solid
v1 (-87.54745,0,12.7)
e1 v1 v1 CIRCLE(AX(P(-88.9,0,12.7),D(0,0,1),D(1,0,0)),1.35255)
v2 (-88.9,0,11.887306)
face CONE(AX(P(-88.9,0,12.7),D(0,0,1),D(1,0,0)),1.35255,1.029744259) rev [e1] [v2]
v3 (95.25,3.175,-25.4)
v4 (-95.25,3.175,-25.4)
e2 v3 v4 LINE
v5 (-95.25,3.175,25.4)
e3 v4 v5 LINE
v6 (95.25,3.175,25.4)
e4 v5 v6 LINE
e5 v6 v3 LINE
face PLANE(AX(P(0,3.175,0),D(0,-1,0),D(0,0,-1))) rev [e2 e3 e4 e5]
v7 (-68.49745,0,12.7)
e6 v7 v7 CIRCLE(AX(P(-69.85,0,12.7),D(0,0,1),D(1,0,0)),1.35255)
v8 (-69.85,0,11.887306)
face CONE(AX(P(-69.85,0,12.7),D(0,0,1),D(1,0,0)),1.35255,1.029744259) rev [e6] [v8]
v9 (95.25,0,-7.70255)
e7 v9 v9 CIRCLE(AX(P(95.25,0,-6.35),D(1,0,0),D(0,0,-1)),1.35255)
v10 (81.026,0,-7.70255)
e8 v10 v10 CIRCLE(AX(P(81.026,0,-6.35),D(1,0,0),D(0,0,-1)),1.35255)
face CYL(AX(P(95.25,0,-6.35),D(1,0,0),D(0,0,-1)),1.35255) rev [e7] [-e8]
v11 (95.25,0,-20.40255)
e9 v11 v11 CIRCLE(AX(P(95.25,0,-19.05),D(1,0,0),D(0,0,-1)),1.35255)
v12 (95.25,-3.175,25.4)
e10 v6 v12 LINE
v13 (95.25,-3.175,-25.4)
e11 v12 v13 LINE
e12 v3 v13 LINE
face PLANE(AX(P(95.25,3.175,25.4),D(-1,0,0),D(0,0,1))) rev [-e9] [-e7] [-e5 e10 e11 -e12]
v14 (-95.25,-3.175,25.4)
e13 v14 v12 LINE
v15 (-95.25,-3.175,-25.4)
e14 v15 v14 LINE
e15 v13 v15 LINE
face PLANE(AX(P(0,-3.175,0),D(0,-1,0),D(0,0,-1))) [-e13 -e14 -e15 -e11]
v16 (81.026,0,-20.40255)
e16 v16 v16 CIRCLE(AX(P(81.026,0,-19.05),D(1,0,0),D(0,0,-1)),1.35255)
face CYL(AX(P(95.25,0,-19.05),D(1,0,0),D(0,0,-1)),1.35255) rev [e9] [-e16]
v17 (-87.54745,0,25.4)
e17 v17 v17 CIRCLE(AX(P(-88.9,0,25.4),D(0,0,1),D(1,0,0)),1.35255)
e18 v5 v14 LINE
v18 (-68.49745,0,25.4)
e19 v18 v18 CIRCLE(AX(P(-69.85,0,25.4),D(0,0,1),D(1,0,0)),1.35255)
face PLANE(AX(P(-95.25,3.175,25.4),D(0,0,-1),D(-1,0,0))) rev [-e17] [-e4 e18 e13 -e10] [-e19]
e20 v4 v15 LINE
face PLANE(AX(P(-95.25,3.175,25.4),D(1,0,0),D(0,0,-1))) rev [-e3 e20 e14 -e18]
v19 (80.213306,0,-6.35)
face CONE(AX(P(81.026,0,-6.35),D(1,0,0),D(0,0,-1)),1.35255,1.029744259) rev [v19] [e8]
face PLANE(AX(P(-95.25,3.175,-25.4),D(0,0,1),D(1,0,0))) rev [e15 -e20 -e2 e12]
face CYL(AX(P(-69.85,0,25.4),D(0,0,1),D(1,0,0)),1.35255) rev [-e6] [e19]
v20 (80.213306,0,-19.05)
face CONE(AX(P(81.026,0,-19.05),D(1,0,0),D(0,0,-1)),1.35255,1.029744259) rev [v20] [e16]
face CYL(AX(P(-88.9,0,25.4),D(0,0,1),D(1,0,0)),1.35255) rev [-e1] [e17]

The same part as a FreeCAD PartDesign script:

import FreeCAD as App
import Part
import Sketcher
from FreeCAD import Vector
Q = App.Units.Quantity

doc = App.newDocument("Part")
params = doc.addObject("Spreadsheet::Sheet", "Params")
for row, (alias, value) in enumerate([
    ("sketch1_height", "2 in"),
    ("sketch1_width", "7.5 in"),
    ("pad1_length", "0.25 in"),
    ("hole_diameter", "0.1065 in"),
    ("hole_depth", "0.5 in"),
    ("hole2_diameter", "0.1065 in"),
    ("hole2_depth", "0.56 in"),
], start=1):
    params.set(f"A{row}", alias)
    params.set(f"B{row}", "=" + value)
    params.setAlias(f"B{row}", alias)

body = doc.addObject("PartDesign::Body", "Body")

# Sketch on XZ plane
sketch1 = body.newObject("Sketcher::SketchObject", "Sketch")
sketch1.AttachmentSupport = (doc.getObject("XZ_Plane"), [""])
sketch1.MapMode = "FlatFace"
sketch1.addGeometry(Part.LineSegment(Vector(-95, -25, 0), Vector(-95, 25, 0)), False)
sketch1.addGeometry(Part.LineSegment(Vector(-95, 25, 0), Vector(95, 25, 0)), False)
sketch1.addGeometry(Part.LineSegment(Vector(95, 25, 0), Vector(95, -25, 0)), False)
sketch1.addGeometry(Part.LineSegment(Vector(95, -25, 0), Vector(-95, -25, 0)), False)
sketch1.addConstraint(Sketcher.Constraint("Coincident", 0, 2, 1, 1))
sketch1.addConstraint(Sketcher.Constraint("Coincident", 1, 2, 2, 1))
sketch1.addConstraint(Sketcher.Constraint("Coincident", 2, 2, 3, 1))
sketch1.addConstraint(Sketcher.Constraint("Coincident", 3, 2, 0, 1))
sketch1.addConstraint(Sketcher.Constraint("Vertical", 0))
sketch1.addConstraint(Sketcher.Constraint("Horizontal", 1))
sketch1.addConstraint(Sketcher.Constraint("Vertical", 2))
sketch1.addConstraint(Sketcher.Constraint("Horizontal", 3))
sketch1.addConstraint(Sketcher.Constraint("Symmetric", 0, 2, 2, 2, -1, 1))
sketch1.addConstraint(Sketcher.Constraint("DistanceY", 0, 1, 0, 2, Q("2 in")))
sketch1.addConstraint(Sketcher.Constraint("DistanceX", 1, 1, 1, 2, Q("7.5 in")))
sketch1.setExpression("Constraints[9]", "Params.sketch1_height")
sketch1.setExpression("Constraints[10]", "Params.sketch1_width")
pad1 = body.newObject("PartDesign::Pad", "Pad")
pad1.Profile = sketch1
pad1.setExpression("Length", "Params.pad1_length")
pad1.Midplane = True

# Sketch on XY plane
sketch2 = body.newObject("Sketcher::SketchObject", "Sketch001")
sketch2.AttachmentSupport = (doc.getObject("XY_Plane"), [""])
sketch2.MapMode = "FlatFace"
sketch2.AttachmentOffset = App.Placement(Vector(0, 0, 1 * 25.4), App.Rotation())
sketch2.addGeometry(Part.Circle(Vector(-69.8, 0, 0), Vector(0, 0, 1), 1.4), False)
sketch2.addGeometry(Part.Circle(Vector(-88.9, 0, 0), Vector(0, 0, 1), 1.4), False)
sketch2.addConstraint(Sketcher.Constraint("Equal", 0, 1))
sketch2.addConstraint(Sketcher.Constraint("PointOnObject", 0, 3, -1))
sketch2.addConstraint(Sketcher.Constraint("PointOnObject", 1, 3, -1))
sketch2.addConstraint(Sketcher.Constraint("Diameter", 0, Q("0.1065 in")))
sketch2.addConstraint(Sketcher.Constraint("DistanceX", 1, 3, -1, 1, Q("3.5 in")))
sketch2.addConstraint(Sketcher.Constraint("DistanceX", 0, 3, -1, 1, Q("2.75 in")))
doc.recompute()
hole = body.newObject("PartDesign::Hole", "Hole")
hole.Profile = sketch2
hole.ThreadType = "None"
hole.setExpression("Diameter", "Params.hole_diameter")
hole.DepthType = "Dimension"
hole.setExpression("Depth", "Params.hole_depth")
hole.DrillPoint = "Angled"
hole.DrillPointAngle = 118

# Sketch on YZ plane
sketch3 = body.newObject("Sketcher::SketchObject", "Sketch002")
sketch3.AttachmentSupport = (doc.getObject("YZ_Plane"), [""])
sketch3.MapMode = "FlatFace"
sketch3.AttachmentOffset = App.Placement(Vector(0, 0, 3.75 * 25.4), App.Rotation())
sketch3.addGeometry(Part.Circle(Vector(0, -6.3, 0), Vector(0, 0, 1), 1.4), False)
sketch3.addGeometry(Part.Circle(Vector(0, -19.1, 0), Vector(0, 0, 1), 1.4), False)
sketch3.addConstraint(Sketcher.Constraint("Equal", 0, 1))
sketch3.addConstraint(Sketcher.Constraint("PointOnObject", 0, 3, -2))
sketch3.addConstraint(Sketcher.Constraint("PointOnObject", 1, 3, -2))
sketch3.addConstraint(Sketcher.Constraint("Diameter", 0, Q("0.1065 in")))
sketch3.addConstraint(Sketcher.Constraint("DistanceY", 1, 3, 0, 3, Q("0.5 in")))
sketch3.addConstraint(Sketcher.Constraint("DistanceY", 0, 3, -1, 1, Q("0.25 in")))
doc.recompute()
hole2 = body.newObject("PartDesign::Hole", "Hole001")
hole2.Profile = sketch3
hole2.ThreadType = "None"
hole2.setExpression("Diameter", "Params.hole2_diameter")
hole2.DepthType = "Dimension"
hole2.setExpression("Depth", "Params.hole2_depth")
hole2.DrillPoint = "Angled"
hole2.DrillPointAngle = 118

doc.recompute()
